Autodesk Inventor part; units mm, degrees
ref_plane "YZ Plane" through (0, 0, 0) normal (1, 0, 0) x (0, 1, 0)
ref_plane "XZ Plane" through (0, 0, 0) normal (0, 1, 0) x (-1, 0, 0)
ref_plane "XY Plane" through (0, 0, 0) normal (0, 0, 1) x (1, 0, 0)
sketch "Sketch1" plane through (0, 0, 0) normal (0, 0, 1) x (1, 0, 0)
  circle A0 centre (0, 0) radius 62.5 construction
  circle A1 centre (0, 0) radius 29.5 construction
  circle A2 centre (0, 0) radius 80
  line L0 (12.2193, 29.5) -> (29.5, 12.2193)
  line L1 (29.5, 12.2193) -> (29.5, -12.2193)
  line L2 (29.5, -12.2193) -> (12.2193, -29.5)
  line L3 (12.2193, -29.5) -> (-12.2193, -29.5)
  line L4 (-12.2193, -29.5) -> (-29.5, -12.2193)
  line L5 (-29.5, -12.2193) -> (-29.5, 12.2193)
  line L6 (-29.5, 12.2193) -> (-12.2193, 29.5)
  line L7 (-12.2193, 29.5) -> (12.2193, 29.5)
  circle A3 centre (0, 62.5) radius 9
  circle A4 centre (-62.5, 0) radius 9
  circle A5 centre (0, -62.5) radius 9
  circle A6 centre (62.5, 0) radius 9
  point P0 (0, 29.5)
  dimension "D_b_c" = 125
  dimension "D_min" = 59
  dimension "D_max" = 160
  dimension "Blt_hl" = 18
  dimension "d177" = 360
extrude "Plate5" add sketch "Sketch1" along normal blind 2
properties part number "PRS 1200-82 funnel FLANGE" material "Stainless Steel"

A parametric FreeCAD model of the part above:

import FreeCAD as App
import Part
import Sketcher
from FreeCAD import Vector

doc = App.newDocument("Part")
body = doc.addObject("PartDesign::Body", "Body")

# Sketch on XY plane
sketch1 = body.newObject("Sketcher::SketchObject", "Sketch")
sketch1.AttachmentSupport = (doc.getObject("XY_Plane"), [""])
sketch1.MapMode = "FlatFace"
sketch1.addGeometry(Part.Circle(Vector(0, 0, 0), Vector(0, 0, 1), 80), False)
sketch1.addGeometry(Part.Circle(Vector(0, -62, 0), Vector(0, 0, 1), 9), False)
sketch1.addGeometry(Part.Circle(Vector(-62, 0, 0), Vector(0, 0, 1), 9), False)
sketch1.addGeometry(Part.LineSegment(Vector(-12, 30, 0), Vector(12, 30, 0)), False)
sketch1.addGeometry(Part.LineSegment(Vector(12, 30, 0), Vector(30, 12, 0)), False)
sketch1.addGeometry(Part.LineSegment(Vector(30, 12, 0), Vector(30, -12, 0)), False)
sketch1.addGeometry(Part.LineSegment(Vector(30, -12, 0), Vector(12, -30, 0)), False)
sketch1.addGeometry(Part.LineSegment(Vector(12, -30, 0), Vector(-12, -30, 0)), False)
sketch1.addGeometry(Part.LineSegment(Vector(-12, -30, 0), Vector(-30, -12, 0)), False)
sketch1.addGeometry(Part.LineSegment(Vector(-30, -12, 0), Vector(-30, 12, 0)), False)
sketch1.addGeometry(Part.LineSegment(Vector(-30, 12, 0), Vector(-12, 30, 0)), False)
sketch1.addGeometry(Part.Circle(Vector(62, 0, 0), Vector(0, 0, 1), 9), False)
sketch1.addGeometry(Part.Circle(Vector(0, 62, 0), Vector(0, 0, 1), 9), False)
sketch1.addConstraint(Sketcher.Constraint("Coincident", 3, 2, 4, 1))
sketch1.addConstraint(Sketcher.Constraint("Coincident", 4, 2, 5, 1))
sketch1.addConstraint(Sketcher.Constraint("Coincident", 5, 2, 6, 1))
sketch1.addConstraint(Sketcher.Constraint("Coincident", 6, 2, 7, 1))
sketch1.addConstraint(Sketcher.Constraint("Coincident", 7, 2, 8, 1))
sketch1.addConstraint(Sketcher.Constraint("Coincident", 8, 2, 9, 1))
sketch1.addConstraint(Sketcher.Constraint("Coincident", 9, 2, 10, 1))
sketch1.addConstraint(Sketcher.Constraint("Coincident", 10, 2, 3, 1))
sketch1.addConstraint(Sketcher.Constraint("Horizontal", 3))
sketch1.addConstraint(Sketcher.Constraint("Vertical", 5))
sketch1.addConstraint(Sketcher.Constraint("Horizontal", 7))
sketch1.addConstraint(Sketcher.Constraint("Vertical", 9))
sketch1.addConstraint(Sketcher.Constraint("Coincident", 0, 3, -1, 1))
sketch1.addConstraint(Sketcher.Constraint("Equal", 1, 2))
sketch1.addConstraint(Sketcher.Constraint("Equal", 2, 11))
sketch1.addConstraint(Sketcher.Constraint("Equal", 11, 12))
sketch1.addConstraint(Sketcher.Constraint("Symmetric", 2, 3, 11, 3, -1, 1))
sketch1.addConstraint(Sketcher.Constraint("Symmetric", 1, 3, 12, 3, -1, 1))
sketch1.addConstraint(Sketcher.Constraint("Symmetric", 3, 2, 7, 2, -1, 1))
sketch1.addConstraint(Sketcher.Constraint("Symmetric", 4, 2, 8, 2, -1, 1))
sketch1.addConstraint(Sketcher.Constraint("PointOnObject", 1, 3, -2))
sketch1.addConstraint(Sketcher.Constraint("PointOnObject", 2, 3, -1))
sketch1.addConstraint(Sketcher.Constraint("Perpendicular", 4, 6))
sketch1.addConstraint(Sketcher.Constraint("Perpendicular", 8, 10))
sketch1.addConstraint(Sketcher.Constraint("Horizontal", 5, 2, 8, 2))
sketch1.addConstraint(Sketcher.Constraint("Horizontal", 4, 2, 9, 2))
sketch1.addConstraint(Sketcher.Constraint("Vertical", 3, 2, 6, 2))
sketch1.addConstraint(Sketcher.Constraint("Equal", 7, 5))
sketch1.addConstraint(Sketcher.Constraint("Diameter", 0, 160.0))
sketch1.addConstraint(Sketcher.Constraint("Diameter", 1, 18.0))
sketch1.addConstraint(Sketcher.Constraint("DistanceX", 2, 3, 11, 3, 125.0))
sketch1.addConstraint(Sketcher.Constraint("DistanceY", 1, 3, 12, 3, 125.0))
sketch1.addConstraint(Sketcher.Constraint("DistanceY", 3, 2, 12, 3, 33.0))
sketch1.addConstraint(Sketcher.Constraint("DistanceX", 3, 1, 3, 2, 24.4386))
pad1 = body.newObject("PartDesign::Pad", "Pad")
pad1.Profile = sketch1
pad1.Length = 2

doc.recompute()
